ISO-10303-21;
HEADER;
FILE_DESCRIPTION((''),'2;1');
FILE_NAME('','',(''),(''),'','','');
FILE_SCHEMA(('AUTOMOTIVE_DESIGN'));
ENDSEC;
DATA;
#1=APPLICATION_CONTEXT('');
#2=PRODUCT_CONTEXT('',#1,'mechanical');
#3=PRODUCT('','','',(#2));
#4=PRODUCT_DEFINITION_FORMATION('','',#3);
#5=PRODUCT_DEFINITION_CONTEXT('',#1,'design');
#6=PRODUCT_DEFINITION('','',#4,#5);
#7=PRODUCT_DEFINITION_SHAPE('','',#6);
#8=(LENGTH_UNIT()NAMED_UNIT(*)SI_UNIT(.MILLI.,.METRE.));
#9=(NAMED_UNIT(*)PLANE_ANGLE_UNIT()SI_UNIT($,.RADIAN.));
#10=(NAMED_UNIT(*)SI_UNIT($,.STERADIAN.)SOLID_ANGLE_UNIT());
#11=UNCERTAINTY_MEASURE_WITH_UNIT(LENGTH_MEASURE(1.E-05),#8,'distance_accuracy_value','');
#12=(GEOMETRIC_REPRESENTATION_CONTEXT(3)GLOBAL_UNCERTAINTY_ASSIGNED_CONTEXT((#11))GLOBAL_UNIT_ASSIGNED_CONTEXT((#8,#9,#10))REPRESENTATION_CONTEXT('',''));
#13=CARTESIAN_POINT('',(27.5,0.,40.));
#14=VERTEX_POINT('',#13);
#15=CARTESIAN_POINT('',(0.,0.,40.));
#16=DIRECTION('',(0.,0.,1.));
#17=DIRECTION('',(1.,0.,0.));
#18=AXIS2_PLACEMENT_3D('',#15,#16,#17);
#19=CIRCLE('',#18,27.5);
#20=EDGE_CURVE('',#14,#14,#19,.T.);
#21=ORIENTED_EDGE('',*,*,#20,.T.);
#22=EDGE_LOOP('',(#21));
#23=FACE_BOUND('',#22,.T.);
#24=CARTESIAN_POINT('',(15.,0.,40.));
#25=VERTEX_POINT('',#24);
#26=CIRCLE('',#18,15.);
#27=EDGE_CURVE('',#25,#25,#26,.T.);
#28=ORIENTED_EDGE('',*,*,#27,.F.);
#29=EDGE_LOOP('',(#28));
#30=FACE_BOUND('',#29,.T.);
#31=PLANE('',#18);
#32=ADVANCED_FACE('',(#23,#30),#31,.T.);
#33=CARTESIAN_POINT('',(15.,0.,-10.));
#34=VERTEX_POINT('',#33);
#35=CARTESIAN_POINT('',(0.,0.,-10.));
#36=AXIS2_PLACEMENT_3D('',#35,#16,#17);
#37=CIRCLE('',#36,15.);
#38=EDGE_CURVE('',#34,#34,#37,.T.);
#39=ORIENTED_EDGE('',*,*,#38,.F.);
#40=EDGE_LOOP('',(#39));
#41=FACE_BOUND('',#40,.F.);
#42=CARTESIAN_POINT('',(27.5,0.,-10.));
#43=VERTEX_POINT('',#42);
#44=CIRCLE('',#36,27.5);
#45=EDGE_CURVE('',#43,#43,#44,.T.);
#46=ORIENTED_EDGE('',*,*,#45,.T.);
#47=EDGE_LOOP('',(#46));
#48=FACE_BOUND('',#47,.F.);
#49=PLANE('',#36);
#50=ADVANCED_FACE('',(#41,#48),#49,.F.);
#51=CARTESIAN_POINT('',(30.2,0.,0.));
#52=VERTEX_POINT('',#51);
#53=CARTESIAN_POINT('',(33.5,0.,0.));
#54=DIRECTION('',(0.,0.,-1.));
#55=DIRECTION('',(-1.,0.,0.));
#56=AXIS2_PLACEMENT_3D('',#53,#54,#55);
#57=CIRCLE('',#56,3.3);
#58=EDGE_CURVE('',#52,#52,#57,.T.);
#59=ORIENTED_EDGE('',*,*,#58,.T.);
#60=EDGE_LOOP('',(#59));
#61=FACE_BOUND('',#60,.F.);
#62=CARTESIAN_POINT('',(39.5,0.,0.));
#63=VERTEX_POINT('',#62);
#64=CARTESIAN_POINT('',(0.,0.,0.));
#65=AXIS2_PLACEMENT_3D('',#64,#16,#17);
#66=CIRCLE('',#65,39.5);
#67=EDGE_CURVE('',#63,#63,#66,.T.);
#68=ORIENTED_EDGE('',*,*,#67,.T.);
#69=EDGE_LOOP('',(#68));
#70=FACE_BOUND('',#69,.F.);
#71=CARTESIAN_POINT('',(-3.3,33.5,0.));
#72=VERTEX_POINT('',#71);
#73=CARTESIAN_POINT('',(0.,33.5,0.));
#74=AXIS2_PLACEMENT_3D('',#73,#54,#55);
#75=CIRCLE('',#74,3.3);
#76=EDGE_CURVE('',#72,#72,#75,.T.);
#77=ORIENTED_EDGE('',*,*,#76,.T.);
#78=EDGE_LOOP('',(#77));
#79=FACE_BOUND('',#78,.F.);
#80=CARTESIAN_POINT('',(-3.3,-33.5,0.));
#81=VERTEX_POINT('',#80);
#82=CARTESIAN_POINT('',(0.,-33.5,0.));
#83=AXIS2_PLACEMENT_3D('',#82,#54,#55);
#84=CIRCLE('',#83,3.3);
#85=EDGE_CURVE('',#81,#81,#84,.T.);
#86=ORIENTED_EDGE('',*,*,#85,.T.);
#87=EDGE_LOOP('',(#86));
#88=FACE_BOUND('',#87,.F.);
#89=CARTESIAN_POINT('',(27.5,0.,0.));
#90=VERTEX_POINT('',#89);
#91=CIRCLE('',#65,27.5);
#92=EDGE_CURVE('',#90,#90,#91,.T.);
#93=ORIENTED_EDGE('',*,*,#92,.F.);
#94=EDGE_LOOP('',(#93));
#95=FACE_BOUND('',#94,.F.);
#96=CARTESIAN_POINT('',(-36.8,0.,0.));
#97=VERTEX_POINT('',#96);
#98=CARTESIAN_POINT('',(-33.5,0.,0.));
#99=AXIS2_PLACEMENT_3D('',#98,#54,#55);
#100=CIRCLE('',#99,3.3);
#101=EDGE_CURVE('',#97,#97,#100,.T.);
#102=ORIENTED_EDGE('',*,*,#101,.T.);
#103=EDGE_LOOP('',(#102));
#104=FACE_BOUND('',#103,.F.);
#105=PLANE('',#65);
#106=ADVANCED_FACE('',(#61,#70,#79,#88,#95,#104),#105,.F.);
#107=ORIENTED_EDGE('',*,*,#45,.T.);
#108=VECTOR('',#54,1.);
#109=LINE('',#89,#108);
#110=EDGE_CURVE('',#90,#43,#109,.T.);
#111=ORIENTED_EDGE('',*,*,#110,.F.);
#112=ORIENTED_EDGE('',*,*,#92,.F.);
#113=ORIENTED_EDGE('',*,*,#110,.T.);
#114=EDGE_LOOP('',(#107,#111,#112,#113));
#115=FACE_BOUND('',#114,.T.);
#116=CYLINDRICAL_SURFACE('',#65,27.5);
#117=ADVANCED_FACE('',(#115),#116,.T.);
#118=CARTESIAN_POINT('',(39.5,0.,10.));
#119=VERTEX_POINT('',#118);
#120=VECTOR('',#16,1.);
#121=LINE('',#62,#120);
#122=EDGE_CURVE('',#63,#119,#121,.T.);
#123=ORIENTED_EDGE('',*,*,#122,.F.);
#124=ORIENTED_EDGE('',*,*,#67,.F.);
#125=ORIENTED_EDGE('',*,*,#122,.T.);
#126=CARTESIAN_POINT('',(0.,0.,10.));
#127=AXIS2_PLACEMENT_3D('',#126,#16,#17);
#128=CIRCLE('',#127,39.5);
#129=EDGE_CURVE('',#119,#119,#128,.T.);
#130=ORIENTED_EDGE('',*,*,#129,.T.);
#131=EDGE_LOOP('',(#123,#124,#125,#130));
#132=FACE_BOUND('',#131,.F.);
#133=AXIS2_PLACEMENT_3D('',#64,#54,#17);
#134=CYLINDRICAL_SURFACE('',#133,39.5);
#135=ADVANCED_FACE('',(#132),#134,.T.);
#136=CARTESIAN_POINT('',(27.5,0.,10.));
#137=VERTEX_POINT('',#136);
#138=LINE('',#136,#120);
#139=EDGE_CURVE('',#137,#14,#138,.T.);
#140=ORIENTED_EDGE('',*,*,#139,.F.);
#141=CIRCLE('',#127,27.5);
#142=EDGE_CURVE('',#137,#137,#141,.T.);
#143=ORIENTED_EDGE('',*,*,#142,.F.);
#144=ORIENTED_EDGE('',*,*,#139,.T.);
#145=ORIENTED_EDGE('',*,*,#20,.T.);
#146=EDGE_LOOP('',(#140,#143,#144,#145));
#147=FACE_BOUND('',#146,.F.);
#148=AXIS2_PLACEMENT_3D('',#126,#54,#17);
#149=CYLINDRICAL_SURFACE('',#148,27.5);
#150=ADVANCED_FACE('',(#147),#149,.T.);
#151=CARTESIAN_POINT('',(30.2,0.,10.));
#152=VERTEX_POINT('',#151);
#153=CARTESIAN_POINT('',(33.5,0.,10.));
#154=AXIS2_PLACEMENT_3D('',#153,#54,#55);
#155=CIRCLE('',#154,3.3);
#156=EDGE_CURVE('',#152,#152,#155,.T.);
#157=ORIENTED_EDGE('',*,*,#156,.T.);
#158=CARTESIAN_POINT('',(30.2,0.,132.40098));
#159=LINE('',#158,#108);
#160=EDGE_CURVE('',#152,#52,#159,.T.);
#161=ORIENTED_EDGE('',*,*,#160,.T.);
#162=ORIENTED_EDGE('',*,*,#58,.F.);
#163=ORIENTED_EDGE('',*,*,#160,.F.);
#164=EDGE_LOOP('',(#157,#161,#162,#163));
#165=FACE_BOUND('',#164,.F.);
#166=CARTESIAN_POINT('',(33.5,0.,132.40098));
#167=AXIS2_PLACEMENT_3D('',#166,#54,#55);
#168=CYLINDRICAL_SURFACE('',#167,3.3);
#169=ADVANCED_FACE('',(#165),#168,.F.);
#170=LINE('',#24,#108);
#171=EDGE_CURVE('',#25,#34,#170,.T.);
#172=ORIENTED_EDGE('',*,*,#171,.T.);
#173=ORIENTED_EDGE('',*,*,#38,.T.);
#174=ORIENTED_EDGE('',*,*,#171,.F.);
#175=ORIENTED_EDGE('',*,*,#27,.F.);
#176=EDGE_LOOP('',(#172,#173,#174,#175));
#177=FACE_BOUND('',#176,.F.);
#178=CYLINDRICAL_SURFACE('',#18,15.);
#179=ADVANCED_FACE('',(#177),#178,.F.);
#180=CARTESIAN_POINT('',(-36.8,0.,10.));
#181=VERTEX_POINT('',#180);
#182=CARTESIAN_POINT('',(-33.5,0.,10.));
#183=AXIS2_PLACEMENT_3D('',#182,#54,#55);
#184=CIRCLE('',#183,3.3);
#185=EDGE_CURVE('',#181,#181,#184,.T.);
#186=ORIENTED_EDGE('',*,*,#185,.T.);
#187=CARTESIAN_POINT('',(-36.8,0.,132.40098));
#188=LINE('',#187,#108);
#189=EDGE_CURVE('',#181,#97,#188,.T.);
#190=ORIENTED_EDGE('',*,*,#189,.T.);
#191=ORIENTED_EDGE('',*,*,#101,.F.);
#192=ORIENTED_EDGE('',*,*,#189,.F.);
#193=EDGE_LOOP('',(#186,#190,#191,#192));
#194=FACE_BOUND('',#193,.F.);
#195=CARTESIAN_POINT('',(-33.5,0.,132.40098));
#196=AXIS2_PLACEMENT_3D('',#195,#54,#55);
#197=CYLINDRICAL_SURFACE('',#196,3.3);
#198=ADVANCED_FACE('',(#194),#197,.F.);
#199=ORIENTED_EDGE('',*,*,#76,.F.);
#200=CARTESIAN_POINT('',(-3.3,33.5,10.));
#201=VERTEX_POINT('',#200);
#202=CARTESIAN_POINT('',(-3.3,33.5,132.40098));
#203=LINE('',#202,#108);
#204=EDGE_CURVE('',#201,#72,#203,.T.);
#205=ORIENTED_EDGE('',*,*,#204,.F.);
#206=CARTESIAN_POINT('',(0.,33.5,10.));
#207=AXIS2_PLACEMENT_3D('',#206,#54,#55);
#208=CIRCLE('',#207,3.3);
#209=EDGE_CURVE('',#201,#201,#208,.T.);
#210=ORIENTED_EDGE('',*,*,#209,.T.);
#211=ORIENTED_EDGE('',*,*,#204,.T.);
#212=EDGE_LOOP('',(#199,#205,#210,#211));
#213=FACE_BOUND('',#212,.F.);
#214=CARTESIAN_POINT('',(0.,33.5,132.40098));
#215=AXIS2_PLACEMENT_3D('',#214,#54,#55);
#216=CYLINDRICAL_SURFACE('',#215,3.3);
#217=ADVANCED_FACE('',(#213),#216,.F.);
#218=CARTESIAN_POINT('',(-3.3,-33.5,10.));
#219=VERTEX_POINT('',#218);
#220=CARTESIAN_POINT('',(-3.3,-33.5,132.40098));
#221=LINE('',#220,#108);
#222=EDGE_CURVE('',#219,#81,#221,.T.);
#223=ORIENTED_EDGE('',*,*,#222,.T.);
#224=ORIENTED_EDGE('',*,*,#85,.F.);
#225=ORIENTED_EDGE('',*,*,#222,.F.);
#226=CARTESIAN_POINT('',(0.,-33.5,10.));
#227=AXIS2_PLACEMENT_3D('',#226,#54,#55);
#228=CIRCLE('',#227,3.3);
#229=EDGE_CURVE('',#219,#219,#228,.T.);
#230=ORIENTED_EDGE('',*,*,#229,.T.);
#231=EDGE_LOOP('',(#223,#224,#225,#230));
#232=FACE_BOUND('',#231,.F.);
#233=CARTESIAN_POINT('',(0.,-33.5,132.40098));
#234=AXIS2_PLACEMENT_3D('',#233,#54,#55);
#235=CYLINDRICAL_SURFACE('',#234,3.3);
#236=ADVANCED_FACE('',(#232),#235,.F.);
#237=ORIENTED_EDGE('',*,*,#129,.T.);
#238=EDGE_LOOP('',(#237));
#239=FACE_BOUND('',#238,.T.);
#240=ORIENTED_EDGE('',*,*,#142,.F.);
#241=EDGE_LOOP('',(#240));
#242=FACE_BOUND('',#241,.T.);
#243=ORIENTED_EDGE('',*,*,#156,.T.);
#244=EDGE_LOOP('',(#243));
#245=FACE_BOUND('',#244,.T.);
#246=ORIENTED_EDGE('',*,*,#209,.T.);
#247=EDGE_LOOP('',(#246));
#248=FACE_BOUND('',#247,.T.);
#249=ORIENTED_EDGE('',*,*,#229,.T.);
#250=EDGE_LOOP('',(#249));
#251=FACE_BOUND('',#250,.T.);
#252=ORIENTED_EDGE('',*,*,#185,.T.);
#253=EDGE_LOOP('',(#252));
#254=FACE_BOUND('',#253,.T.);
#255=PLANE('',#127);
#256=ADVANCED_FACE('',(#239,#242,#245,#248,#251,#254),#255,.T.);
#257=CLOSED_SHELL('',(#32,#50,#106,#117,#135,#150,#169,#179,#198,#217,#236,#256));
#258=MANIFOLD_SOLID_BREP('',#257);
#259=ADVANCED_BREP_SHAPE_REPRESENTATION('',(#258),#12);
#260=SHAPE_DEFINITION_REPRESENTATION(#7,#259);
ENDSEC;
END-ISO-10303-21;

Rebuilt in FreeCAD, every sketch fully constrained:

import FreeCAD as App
import Part
import Sketcher
from FreeCAD import Vector

doc = App.newDocument("Part")
body = doc.addObject("PartDesign::Body", "Body")

# Sketch on XY plane
sketch1 = body.newObject("Sketcher::SketchObject", "Sketch")
sketch1.AttachmentSupport = (doc.getObject("XY_Plane"), [""])
sketch1.MapMode = "FlatFace"
sketch1.addGeometry(Part.Circle(Vector(0, 0, 0), Vector(0, 0, 1), 28), False)
sketch1.addConstraint([
    Sketcher.Constraint("Coincident", 0, 3, -1, 1),
    Sketcher.Constraint("Diameter", 0, 55.0),
])
pad1 = body.newObject("PartDesign::Pad", "Pad")
pad1.Profile = sketch1
pad1.Length = 10
pad1.Reversed = True

# Sketch on XY plane
sketch2 = body.newObject("Sketcher::SketchObject", "Sketch001")
sketch2.AttachmentSupport = (doc.getObject("XY_Plane"), [""])
sketch2.MapMode = "FlatFace"
sketch2.addGeometry(Part.Circle(Vector(0, 0, 0), Vector(0, 0, 1), 40), False)
sketch2.addConstraint([
    Sketcher.Constraint("Coincident", 0, 3, -1, 1),
    Sketcher.Constraint("Diameter", 0, 79.0),
])
pad2 = body.newObject("PartDesign::Pad", "Pad001")
pad2.Profile = sketch2
pad2.Length = 10

# Sketch on XY plane
sketch3 = body.newObject("Sketcher::SketchObject", "Sketch002")
sketch3.AttachmentSupport = (doc.getObject("XY_Plane"), [""])
sketch3.MapMode = "FlatFace"
sketch3.AttachmentOffset = App.Placement(Vector(0, 0, 10), App.Rotation())
sketch3.addGeometry(Part.Circle(Vector(0, 0, 0), Vector(0, 0, 1), 28), False)
sketch3.addConstraint([
    Sketcher.Constraint("Coincident", 0, 3, -1, 1),
    Sketcher.Constraint("Diameter", 0, 55.0),
])
pad3 = body.newObject("PartDesign::Pad", "Pad002")
pad3.Profile = sketch3
pad3.Length = 30

# Sketch on XY plane
sketch4 = body.newObject("Sketcher::SketchObject", "Sketch003")
sketch4.AttachmentSupport = (doc.getObject("XY_Plane"), [""])
sketch4.MapMode = "FlatFace"
sketch4.AttachmentOffset = App.Placement(Vector(0, 0, 40), App.Rotation())
sketch4.addGeometry(Part.Circle(Vector(0, 0, 0), Vector(0, 0, 1), 15), False)
sketch4.addConstraint([
    Sketcher.Constraint("Coincident", 0, 3, -1, 1),
    Sketcher.Constraint("Diameter", 0, 30.0),
])
pocket1 = body.newObject("PartDesign::Pocket", "Pocket")
pocket1.Profile = sketch4
pocket1.Type = "ThroughAll"

# Sketch on XY plane
sketch5 = body.newObject("Sketcher::SketchObject", "Sketch004")
sketch5.AttachmentSupport = (doc.getObject("XY_Plane"), [""])
sketch5.MapMode = "FlatFace"
sketch5.AttachmentOffset = App.Placement(Vector(0, 0, 10), App.Rotation())
sketch5.addGeometry([
    Part.Circle(Vector(0, 33.5, 0), Vector(0, 0, 1), 3.3),
    Part.Circle(Vector(33.5, 0, 0), Vector(0, 0, 1), 3.3),
    Part.Circle(Vector(0, -33.5, 0), Vector(0, 0, 1), 3.3),
    Part.Circle(Vector(-33.5, 0, 0), Vector(0, 0, 1), 3.3),
], False)
sketch5.addConstraint([
    Sketcher.Constraint("Equal", 0, 1),
    Sketcher.Constraint("Equal", 1, 2),
    Sketcher.Constraint("Equal", 2, 3),
    Sketcher.Constraint("Symmetric", 0, 3, 2, 3, -1, 1),
    Sketcher.Constraint("Symmetric", 1, 3, 3, 3, -1, 1),
    Sketcher.Constraint("PointOnObject", 0, 3, -2),
    Sketcher.Constraint("PointOnObject", 1, 3, -1),
    Sketcher.Constraint("Diameter", 0, 6.6),
    Sketcher.Constraint("DistanceY", 2, 3, 0, 3, 67.0),
    Sketcher.Constraint("DistanceX", 3, 3, 1, 3, 67.0),
])
doc.recompute()
hole = body.newObject("PartDesign::Hole", "Hole")
hole.Profile = sketch5
hole.ThreadType = "None"
hole.Diameter = 6.6
hole.DepthType = "ThroughAll"

doc.recompute()
